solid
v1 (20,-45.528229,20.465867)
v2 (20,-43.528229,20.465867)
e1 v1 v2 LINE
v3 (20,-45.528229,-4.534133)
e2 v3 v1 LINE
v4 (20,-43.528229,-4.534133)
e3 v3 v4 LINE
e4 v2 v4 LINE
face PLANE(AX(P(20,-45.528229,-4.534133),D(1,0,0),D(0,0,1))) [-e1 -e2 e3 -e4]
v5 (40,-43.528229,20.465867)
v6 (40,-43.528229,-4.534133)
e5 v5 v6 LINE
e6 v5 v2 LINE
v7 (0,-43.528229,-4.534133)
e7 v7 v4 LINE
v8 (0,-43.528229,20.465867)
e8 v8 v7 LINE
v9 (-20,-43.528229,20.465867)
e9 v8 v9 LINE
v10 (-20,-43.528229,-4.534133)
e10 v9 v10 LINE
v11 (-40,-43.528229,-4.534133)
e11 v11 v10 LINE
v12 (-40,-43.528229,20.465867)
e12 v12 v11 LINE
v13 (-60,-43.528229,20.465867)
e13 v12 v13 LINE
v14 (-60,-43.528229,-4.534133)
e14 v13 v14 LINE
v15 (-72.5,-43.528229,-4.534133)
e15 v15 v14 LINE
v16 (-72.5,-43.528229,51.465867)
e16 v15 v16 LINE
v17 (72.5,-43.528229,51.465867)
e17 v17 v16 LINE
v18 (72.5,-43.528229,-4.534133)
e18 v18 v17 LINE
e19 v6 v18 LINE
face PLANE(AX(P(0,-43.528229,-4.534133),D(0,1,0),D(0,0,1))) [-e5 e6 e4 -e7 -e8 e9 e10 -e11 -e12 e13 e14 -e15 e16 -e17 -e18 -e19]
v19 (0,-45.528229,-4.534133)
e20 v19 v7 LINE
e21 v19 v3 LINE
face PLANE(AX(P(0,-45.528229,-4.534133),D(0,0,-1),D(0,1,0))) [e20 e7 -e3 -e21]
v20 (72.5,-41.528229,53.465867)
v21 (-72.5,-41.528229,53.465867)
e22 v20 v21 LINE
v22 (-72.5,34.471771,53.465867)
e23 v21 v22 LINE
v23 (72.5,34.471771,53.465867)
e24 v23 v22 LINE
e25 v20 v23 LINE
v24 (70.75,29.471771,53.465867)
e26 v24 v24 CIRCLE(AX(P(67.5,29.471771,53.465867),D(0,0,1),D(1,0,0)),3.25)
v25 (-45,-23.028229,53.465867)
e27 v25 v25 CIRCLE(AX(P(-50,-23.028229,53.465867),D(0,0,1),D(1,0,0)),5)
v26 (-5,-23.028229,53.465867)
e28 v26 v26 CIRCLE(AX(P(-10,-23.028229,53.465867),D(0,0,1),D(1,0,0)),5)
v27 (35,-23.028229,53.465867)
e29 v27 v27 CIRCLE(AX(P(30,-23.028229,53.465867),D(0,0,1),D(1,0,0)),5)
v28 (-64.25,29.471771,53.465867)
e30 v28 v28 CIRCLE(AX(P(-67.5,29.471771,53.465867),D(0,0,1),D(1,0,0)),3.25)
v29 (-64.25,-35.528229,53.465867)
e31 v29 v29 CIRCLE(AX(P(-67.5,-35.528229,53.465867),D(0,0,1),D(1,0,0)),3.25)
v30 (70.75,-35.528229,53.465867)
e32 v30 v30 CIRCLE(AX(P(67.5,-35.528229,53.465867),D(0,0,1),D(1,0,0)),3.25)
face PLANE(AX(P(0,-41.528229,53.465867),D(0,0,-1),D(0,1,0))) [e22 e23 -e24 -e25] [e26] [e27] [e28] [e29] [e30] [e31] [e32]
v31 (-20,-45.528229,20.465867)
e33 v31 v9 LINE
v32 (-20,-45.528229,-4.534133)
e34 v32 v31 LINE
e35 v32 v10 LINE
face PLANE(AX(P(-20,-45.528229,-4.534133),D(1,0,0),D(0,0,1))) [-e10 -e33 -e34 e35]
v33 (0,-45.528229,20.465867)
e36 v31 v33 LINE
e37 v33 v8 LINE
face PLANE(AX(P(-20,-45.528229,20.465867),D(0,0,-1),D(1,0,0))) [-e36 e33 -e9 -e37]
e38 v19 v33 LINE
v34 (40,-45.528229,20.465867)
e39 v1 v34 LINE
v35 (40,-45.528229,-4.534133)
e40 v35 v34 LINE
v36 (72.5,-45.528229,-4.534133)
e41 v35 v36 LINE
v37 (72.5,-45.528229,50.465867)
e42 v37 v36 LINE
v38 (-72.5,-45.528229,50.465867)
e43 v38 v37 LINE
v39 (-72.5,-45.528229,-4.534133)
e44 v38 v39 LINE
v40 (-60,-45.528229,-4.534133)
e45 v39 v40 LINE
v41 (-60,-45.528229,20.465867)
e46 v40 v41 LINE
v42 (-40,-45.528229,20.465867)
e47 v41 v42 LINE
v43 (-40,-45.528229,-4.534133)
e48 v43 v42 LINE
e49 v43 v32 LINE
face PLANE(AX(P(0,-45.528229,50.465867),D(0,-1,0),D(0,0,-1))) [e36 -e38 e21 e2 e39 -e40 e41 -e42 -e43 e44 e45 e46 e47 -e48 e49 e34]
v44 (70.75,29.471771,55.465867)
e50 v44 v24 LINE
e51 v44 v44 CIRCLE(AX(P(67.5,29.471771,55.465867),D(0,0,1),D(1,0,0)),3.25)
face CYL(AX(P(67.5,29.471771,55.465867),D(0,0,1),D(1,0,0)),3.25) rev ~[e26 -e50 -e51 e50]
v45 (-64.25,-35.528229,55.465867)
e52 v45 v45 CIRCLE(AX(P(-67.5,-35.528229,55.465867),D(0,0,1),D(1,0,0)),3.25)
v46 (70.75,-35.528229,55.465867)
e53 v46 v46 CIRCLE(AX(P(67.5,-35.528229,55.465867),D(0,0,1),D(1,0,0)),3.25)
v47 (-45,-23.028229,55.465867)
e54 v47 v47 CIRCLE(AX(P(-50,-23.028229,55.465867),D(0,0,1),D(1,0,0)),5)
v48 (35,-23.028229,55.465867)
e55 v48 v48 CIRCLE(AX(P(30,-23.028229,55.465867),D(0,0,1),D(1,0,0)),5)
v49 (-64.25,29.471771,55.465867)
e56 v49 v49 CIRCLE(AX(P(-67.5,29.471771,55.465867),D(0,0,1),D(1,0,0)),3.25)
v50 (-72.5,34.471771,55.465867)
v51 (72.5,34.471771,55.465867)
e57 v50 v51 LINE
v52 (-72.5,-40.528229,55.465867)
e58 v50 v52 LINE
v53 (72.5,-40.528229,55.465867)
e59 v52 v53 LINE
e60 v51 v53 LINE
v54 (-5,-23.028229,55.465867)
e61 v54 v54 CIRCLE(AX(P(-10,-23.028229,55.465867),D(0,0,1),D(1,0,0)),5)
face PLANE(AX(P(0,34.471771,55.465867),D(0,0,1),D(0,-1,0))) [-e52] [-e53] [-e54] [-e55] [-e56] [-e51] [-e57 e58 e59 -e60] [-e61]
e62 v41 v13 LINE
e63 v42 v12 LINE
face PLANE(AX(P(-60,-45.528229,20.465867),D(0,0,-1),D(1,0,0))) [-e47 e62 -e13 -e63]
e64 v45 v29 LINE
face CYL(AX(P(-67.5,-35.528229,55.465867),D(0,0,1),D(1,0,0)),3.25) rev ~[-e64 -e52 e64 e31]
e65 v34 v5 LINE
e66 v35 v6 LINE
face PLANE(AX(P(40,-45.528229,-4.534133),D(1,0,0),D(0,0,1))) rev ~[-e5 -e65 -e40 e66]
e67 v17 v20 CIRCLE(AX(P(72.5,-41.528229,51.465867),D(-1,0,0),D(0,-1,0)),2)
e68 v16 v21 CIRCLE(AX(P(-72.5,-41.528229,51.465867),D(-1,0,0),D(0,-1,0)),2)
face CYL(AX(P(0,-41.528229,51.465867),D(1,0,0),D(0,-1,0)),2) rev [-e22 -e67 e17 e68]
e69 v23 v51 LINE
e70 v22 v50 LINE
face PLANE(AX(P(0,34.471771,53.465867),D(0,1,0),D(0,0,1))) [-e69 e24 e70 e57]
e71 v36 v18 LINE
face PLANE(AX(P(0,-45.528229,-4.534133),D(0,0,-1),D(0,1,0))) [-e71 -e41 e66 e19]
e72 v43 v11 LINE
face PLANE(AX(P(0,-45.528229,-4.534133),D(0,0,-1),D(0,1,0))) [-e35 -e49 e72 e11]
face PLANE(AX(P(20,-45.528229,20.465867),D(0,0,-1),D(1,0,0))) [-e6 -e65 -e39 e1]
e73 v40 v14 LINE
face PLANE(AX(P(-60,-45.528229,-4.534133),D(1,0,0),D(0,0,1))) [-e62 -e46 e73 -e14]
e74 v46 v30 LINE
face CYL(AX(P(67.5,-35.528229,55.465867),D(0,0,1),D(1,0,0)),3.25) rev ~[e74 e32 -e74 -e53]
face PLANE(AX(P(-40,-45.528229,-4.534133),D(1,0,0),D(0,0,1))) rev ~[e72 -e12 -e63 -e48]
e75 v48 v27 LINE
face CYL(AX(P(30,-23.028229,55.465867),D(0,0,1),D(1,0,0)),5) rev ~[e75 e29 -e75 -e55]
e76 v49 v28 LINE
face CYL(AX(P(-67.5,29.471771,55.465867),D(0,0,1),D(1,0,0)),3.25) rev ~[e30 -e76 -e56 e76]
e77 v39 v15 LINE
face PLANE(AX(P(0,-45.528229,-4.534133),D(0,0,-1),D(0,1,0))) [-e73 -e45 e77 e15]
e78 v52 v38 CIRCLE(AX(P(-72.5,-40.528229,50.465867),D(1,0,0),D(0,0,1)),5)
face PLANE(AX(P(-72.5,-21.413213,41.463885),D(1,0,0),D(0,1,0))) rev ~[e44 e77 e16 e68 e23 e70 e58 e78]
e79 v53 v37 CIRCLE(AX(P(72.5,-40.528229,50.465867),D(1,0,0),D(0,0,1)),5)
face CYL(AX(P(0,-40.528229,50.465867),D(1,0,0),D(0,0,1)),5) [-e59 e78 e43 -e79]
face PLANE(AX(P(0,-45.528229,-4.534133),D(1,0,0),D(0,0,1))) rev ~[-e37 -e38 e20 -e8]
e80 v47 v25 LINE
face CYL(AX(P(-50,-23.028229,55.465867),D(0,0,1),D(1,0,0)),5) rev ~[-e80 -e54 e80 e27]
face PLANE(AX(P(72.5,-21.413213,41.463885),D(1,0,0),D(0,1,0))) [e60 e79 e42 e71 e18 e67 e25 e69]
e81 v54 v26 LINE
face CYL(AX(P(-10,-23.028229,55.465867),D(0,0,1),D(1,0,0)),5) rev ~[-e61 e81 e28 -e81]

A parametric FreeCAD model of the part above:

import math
import FreeCAD as App
import Part
import Sketcher

doc = App.newDocument("Part")
body = doc.addObject("PartDesign::Body", "Body")

sketch1 = body.newObject("Sketcher::SketchObject", "Sketch")
sketch1.AttachmentSupport = (doc.getObject("YZ_Plane"), [""])
sketch1.MapMode = "FlatFace"
sketch1.addGeometry([
    Part.LineSegment(App.Vector(34.471771, 53.465867, 0), App.Vector(34.471771, 55.465867, 0)),
    Part.LineSegment(App.Vector(34.471771, 55.465867, 0), App.Vector(-40.528229, 55.465867, 0)),
    Part.ArcOfCircle(Part.Circle(App.Vector(-40.528229, 50.465867, 0), App.Vector(0, 0, 1), 5), math.radians(90), math.radians(180)),
    Part.LineSegment(App.Vector(-45.528229, 50.465867, 0), App.Vector(-45.528229, -4.534133, 0)),
    Part.LineSegment(App.Vector(-45.528229, -4.534133, 0), App.Vector(-43.528229, -4.534133, 0)),
    Part.LineSegment(App.Vector(-43.528229, -4.534133, 0), App.Vector(-43.528229, 51.465867, 0)),
    Part.ArcOfCircle(Part.Circle(App.Vector(-41.528229, 51.465867, 0), App.Vector(0, 0, 1), 2), math.radians(90), math.radians(180)),
    Part.LineSegment(App.Vector(-41.528229, 53.465867, 0), App.Vector(34.471771, 53.465867, 0)),
], False)
sketch1.addConstraint([
    Sketcher.Constraint("Coincident", 0, 2, 1, 1),
    Sketcher.Constraint("Tangent", 1, 2, 2, 1),
    Sketcher.Constraint("Tangent", 2, 2, 3, 1),
    Sketcher.Constraint("Coincident", 3, 2, 4, 1),
    Sketcher.Constraint("Coincident", 4, 2, 5, 1),
    Sketcher.Constraint("Tangent", 5, 2, 6, 2),
    Sketcher.Constraint("Tangent", 6, 1, 7, 1),
    Sketcher.Constraint("Coincident", 7, 2, 0, 1),
    Sketcher.Constraint("Vertical", 0),
    Sketcher.Constraint("Horizontal", 1),
    Sketcher.Constraint("Vertical", 3),
    Sketcher.Constraint("Horizontal", 4),
    Sketcher.Constraint("Vertical", 5),
    Sketcher.Constraint("Horizontal", 7),
    Sketcher.Constraint("Equal", 4, 0),
    Sketcher.Constraint("Radius", 2, 5.0),
    Sketcher.Constraint("Radius", 6, 2.0),
    Sketcher.Constraint("DistanceX", 1, 2, 1, 1, 75.0),
    Sketcher.Constraint("DistanceX", 4, 1, 4, 2, 2.0),
    Sketcher.Constraint("DistanceY", 3, 2, 3, 1, 55.0),
    Sketcher.Constraint("DistanceX", 2, 3, -1, 1, 40.528229),
    Sketcher.Constraint("DistanceY", -1, 1, 2, 3, 50.465867),
])
pad1 = body.newObject("PartDesign::Pad", "Pad")
pad1.Profile = sketch1
pad1.Length = 145
pad1.Midplane = True

sketch2 = body.newObject("Sketcher::SketchObject", "Sketch001")
sketch2.AttachmentSupport = (doc.getObject("XZ_Plane"), [""])
sketch2.MapMode = "FlatFace"
sketch2.AttachmentOffset = App.Placement(App.Vector(0, 0, 45.528229), App.Rotation())
sketch2.addGeometry([
    Part.LineSegment(App.Vector(-60, 20.465867, 0), App.Vector(-60, -4.534133, 0)),
    Part.LineSegment(App.Vector(-60, -4.534133, 0), App.Vector(-40, -4.534133, 0)),
    Part.LineSegment(App.Vector(-40, -4.534133, 0), App.Vector(-40, 20.465867, 0)),
    Part.LineSegment(App.Vector(-40, 20.465867, 0), App.Vector(-60, 20.465867, 0)),
    Part.LineSegment(App.Vector(-20, 20.465867, 0), App.Vector(-20, -4.534133, 0)),
    Part.LineSegment(App.Vector(-20, -4.534133, 0), App.Vector(0, -4.534133, 0)),
    Part.LineSegment(App.Vector(0, -4.534133, 0), App.Vector(0, 20.465867, 0)),
    Part.LineSegment(App.Vector(0, 20.465867, 0), App.Vector(-20, 20.465867, 0)),
    Part.LineSegment(App.Vector(20, 20.465867, 0), App.Vector(20, -4.534133, 0)),
    Part.LineSegment(App.Vector(20, -4.534133, 0), App.Vector(40, -4.534133, 0)),
    Part.LineSegment(App.Vector(40, -4.534133, 0), App.Vector(40, 20.465867, 0)),
    Part.LineSegment(App.Vector(40, 20.465867, 0), App.Vector(20, 20.465867, 0)),
], False)
sketch2.addConstraint([
    Sketcher.Constraint("Coincident", 0, 2, 1, 1),
    Sketcher.Constraint("Coincident", 1, 2, 2, 1),
    Sketcher.Constraint("Coincident", 2, 2, 3, 1),
    Sketcher.Constraint("Coincident", 3, 2, 0, 1),
    Sketcher.Constraint("Coincident", 4, 2, 5, 1),
    Sketcher.Constraint("Coincident", 5, 2, 6, 1),
    Sketcher.Constraint("Coincident", 6, 2, 7, 1),
    Sketcher.Constraint("Coincident", 7, 2, 4, 1),
    Sketcher.Constraint("Coincident", 8, 2, 9, 1),
    Sketcher.Constraint("Coincident", 9, 2, 10, 1),
    Sketcher.Constraint("Coincident", 10, 2, 11, 1),
    Sketcher.Constraint("Coincident", 11, 2, 8, 1),
    Sketcher.Constraint("Vertical", 0),
    Sketcher.Constraint("Horizontal", 1),
    Sketcher.Constraint("Vertical", 2),
    Sketcher.Constraint("Horizontal", 3),
    Sketcher.Constraint("Vertical", 4),
    Sketcher.Constraint("Horizontal", 5),
    Sketcher.Constraint("Vertical", 6),
    Sketcher.Constraint("Horizontal", 7),
    Sketcher.Constraint("Vertical", 8),
    Sketcher.Constraint("Horizontal", 9),
    Sketcher.Constraint("Vertical", 10),
    Sketcher.Constraint("Horizontal", 11),
    Sketcher.Constraint("Symmetric", 4, 2, 8, 2, -2),
    Sketcher.Constraint("Symmetric", 1, 2, 9, 2, -2),
    Sketcher.Constraint("PointOnObject", 5, 2, -2),
    Sketcher.Constraint("Horizontal", 3, 2, 6, 2),
    Sketcher.Constraint("Horizontal", 7, 2, 10, 2),
    Sketcher.Constraint("Equal", 3, 5),
    Sketcher.Constraint("Equal", 7, 9),
    Sketcher.Constraint("DistanceX", 1, 1, 1, 2, 20.0),
    Sketcher.Constraint("DistanceY", 0, 2, 0, 1, 25.0),
    Sketcher.Constraint("DistanceY", 0, 2, -1, 1, 4.534133),
])
pocket1 = body.newObject("PartDesign::Pocket", "Pocket")
pocket1.Profile = sketch2
pocket1.Length = 25

sketch3 = body.newObject("Sketcher::SketchObject", "Sketch002")
sketch3.AttachmentSupport = (doc.getObject("XY_Plane"), [""])
sketch3.MapMode = "FlatFace"
sketch3.AttachmentOffset = App.Placement(App.Vector(0, 0, 55.465867), App.Rotation())
sketch3.addGeometry([
    Part.Circle(App.Vector(-50, -23.028229, 0), App.Vector(0, 0, 1), 5),
    Part.Circle(App.Vector(-10, -23.028229, 0), App.Vector(0, 0, 1), 5),
    Part.Circle(App.Vector(30, -23.028229, 0), App.Vector(0, 0, 1), 5),
], False)
sketch3.addConstraint([
    Sketcher.Constraint("Equal", 0, 1),
    Sketcher.Constraint("Equal", 1, 2),
    Sketcher.Constraint("Horizontal", 0, 3, 1, 3),
    Sketcher.Constraint("Horizontal", 1, 3, 2, 3),
    Sketcher.Constraint("Diameter", 0, 10.0),
    Sketcher.Constraint("DistanceX", 0, 3, -1, 1, 50.0),
    Sketcher.Constraint("DistanceX", 1, 3, -1, 1, 10.0),
    Sketcher.Constraint("DistanceX", -1, 1, 2, 3, 30.0),
    Sketcher.Constraint("DistanceY", 0, 3, -1, 1, 23.028229),
])
pocket2 = body.newObject("PartDesign::Pocket", "Pocket001")
pocket2.Profile = sketch3
pocket2.Length = 25

sketch4 = body.newObject("Sketcher::SketchObject", "Sketch003")
sketch4.AttachmentSupport = (doc.getObject("XY_Plane"), [""])
sketch4.MapMode = "FlatFace"
sketch4.AttachmentOffset = App.Placement(App.Vector(0, 0, 55.465867), App.Rotation())
sketch4.addGeometry([
    Part.Circle(App.Vector(-67.5, -35.528229, 0), App.Vector(0, 0, 1), 3.25),
    Part.Circle(App.Vector(-67.5, 29.471771, 0), App.Vector(0, 0, 1), 3.25),
    Part.Circle(App.Vector(67.5, 29.471771, 0), App.Vector(0, 0, 1), 3.25),
    Part.Circle(App.Vector(67.5, -35.528229, 0), App.Vector(0, 0, 1), 3.25),
], False)
sketch4.addConstraint([
    Sketcher.Constraint("Equal", 0, 1),
    Sketcher.Constraint("Equal", 1, 2),
    Sketcher.Constraint("Equal", 2, 3),
    Sketcher.Constraint("Symmetric", 1, 3, 2, 3, -2),
    Sketcher.Constraint("Symmetric", 0, 3, 3, 3, -2),
    Sketcher.Constraint("Vertical", 0, 3, 1, 3),
    Sketcher.Constraint("Diameter", 0, 6.5),
    Sketcher.Constraint("DistanceY", 0, 3, 1, 3, 65.0),
    Sketcher.Constraint("DistanceX", 1, 3, 2, 3, 135.0),
    Sketcher.Constraint("DistanceY", 0, 3, -1, 1, 35.528229),
])
pocket3 = body.newObject("PartDesign::Pocket", "Pocket002")
pocket3.Profile = sketch4
pocket3.Length = 25

doc.recompute()
